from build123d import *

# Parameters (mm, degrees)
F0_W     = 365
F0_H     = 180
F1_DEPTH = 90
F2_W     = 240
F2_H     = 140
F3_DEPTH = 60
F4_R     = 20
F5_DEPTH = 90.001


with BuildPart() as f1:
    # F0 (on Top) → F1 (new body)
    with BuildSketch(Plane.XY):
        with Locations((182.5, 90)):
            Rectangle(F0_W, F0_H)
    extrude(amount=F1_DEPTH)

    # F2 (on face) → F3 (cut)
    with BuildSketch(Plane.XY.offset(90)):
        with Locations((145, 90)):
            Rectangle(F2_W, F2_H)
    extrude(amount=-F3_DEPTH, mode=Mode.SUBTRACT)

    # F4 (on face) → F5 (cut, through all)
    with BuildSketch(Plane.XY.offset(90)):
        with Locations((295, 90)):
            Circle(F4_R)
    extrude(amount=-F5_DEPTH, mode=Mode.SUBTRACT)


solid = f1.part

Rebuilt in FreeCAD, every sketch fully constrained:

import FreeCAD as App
import Part
import Sketcher

V = App.Vector


def add_polygon(sketch, points):
    """Adds a closed chain of lines whose ends are joined by coincident constraints."""
    first, n = sketch.GeometryCount, len(points)
    for a, b in zip(points, points[1:] + points[:1]):
        sketch.addGeometry(Part.LineSegment(App.Vector(*a, 0), App.Vector(*b, 0)), False)
    for i in range(n):
        sketch.addConstraint(Sketcher.Constraint("Coincident", first + i, 2, first + (i + 1) % n, 1))

doc = App.newDocument("Part")
params = doc.addObject("Spreadsheet::Sheet", "Params")
for row, (alias, value) in enumerate([
    ("sketch1_width", "365 mm"),
    ("sketch1_height", "180 mm"),
    ("pad1_length", "90 mm"),
    ("sketch2_width", "240 mm"),
    ("sketch2_height", "140 mm"),
    ("pocket1_length", "60 mm"),
    ("sketch3_diameter", "40 mm"),
], start=1):
    params.set(f"A{row}", alias)
    params.set(f"B{row}", "=" + value)
    params.setAlias(f"B{row}", alias)

body = doc.addObject("PartDesign::Body", "Body")

# Sketch on XY plane
sketch1 = doc.addObject("Sketcher::SketchObject", "Sketch")
body.addObject(sketch1)
sketch1.AttachmentSupport = (doc.XY_Plane, [""])
sketch1.MapMode = "FlatFace"
add_polygon(sketch1, [(0, 180), (0, 0), (365, 0), (365, 180)])  # lines 0-3
sketch1.addConstraint([
    Sketcher.Constraint("Vertical", 0),
    Sketcher.Constraint("Horizontal", 1),
    Sketcher.Constraint("Vertical", 2),
    Sketcher.Constraint("Horizontal", 3),
    Sketcher.Constraint("Coincident", 0, 2, -1, 1),
    Sketcher.Constraint("DistanceX", 1, 1, 1, 2, 365.0),
    Sketcher.Constraint("DistanceY", 0, 2, 0, 1, 180.0),
])
sketch1.setExpression("Constraints[9]", "Params.sketch1_width")
sketch1.setExpression("Constraints[10]", "Params.sketch1_height")
pad1 = doc.addObject("PartDesign::Pad", "Pad")
body.addObject(pad1)
pad1.Profile = sketch1
pad1.setExpression("Length", "Params.pad1_length")

# Sketch on XY plane
sketch2 = doc.addObject("Sketcher::SketchObject", "Sketch001")
body.addObject(sketch2)
sketch2.AttachmentSupport = (doc.XY_Plane, [""])
sketch2.MapMode = "FlatFace"
sketch2.AttachmentOffset = App.Placement(V(0, 0, 90), App.Rotation())
add_polygon(sketch2, [(25, 160), (25, 20), (265, 20), (265, 160)])  # lines 0-3
sketch2.addConstraint([
    Sketcher.Constraint("Vertical", 0),
    Sketcher.Constraint("Horizontal", 1),
    Sketcher.Constraint("Vertical", 2),
    Sketcher.Constraint("Horizontal", 3),
    Sketcher.Constraint("DistanceX", 1, 1, 1, 2, 240.0),
    Sketcher.Constraint("DistanceY", 0, 2, 0, 1, 140.0),
    Sketcher.Constraint("DistanceX", -1, 1, 0, 2, 25.0),
    Sketcher.Constraint("DistanceY", -1, 1, 0, 2, 20.0),
])
sketch2.setExpression("Constraints[8]", "Params.sketch2_width")
sketch2.setExpression("Constraints[9]", "Params.sketch2_height")
pocket1 = doc.addObject("PartDesign::Pocket", "Pocket")
body.addObject(pocket1)
pocket1.Profile = sketch2
pocket1.setExpression("Length", "Params.pocket1_length")

# Sketch on XY plane
sketch3 = doc.addObject("Sketcher::SketchObject", "Sketch002")
body.addObject(sketch3)
sketch3.AttachmentSupport = (doc.XY_Plane, [""])
sketch3.MapMode = "FlatFace"
sketch3.AttachmentOffset = App.Placement(V(0, 0, 90), App.Rotation())
sketch3.addGeometry(Part.Circle(V(295, 90, 0), V(0, 0, 1), 20), False)
sketch3.addConstraint([
    Sketcher.Constraint("Diameter", 0, 40.0),
    Sketcher.Constraint("DistanceX", -1, 1, 0, 3, 295.0),
    Sketcher.Constraint("DistanceY", -1, 1, 0, 3, 90.0),
])
sketch3.setExpression("Constraints[0]", "Params.sketch3_diameter")
pocket2 = doc.addObject("PartDesign::Pocket", "Pocket001")
body.addObject(pocket2)
pocket2.Profile = sketch3
pocket2.Type = "ThroughAll"

doc.recompute()
